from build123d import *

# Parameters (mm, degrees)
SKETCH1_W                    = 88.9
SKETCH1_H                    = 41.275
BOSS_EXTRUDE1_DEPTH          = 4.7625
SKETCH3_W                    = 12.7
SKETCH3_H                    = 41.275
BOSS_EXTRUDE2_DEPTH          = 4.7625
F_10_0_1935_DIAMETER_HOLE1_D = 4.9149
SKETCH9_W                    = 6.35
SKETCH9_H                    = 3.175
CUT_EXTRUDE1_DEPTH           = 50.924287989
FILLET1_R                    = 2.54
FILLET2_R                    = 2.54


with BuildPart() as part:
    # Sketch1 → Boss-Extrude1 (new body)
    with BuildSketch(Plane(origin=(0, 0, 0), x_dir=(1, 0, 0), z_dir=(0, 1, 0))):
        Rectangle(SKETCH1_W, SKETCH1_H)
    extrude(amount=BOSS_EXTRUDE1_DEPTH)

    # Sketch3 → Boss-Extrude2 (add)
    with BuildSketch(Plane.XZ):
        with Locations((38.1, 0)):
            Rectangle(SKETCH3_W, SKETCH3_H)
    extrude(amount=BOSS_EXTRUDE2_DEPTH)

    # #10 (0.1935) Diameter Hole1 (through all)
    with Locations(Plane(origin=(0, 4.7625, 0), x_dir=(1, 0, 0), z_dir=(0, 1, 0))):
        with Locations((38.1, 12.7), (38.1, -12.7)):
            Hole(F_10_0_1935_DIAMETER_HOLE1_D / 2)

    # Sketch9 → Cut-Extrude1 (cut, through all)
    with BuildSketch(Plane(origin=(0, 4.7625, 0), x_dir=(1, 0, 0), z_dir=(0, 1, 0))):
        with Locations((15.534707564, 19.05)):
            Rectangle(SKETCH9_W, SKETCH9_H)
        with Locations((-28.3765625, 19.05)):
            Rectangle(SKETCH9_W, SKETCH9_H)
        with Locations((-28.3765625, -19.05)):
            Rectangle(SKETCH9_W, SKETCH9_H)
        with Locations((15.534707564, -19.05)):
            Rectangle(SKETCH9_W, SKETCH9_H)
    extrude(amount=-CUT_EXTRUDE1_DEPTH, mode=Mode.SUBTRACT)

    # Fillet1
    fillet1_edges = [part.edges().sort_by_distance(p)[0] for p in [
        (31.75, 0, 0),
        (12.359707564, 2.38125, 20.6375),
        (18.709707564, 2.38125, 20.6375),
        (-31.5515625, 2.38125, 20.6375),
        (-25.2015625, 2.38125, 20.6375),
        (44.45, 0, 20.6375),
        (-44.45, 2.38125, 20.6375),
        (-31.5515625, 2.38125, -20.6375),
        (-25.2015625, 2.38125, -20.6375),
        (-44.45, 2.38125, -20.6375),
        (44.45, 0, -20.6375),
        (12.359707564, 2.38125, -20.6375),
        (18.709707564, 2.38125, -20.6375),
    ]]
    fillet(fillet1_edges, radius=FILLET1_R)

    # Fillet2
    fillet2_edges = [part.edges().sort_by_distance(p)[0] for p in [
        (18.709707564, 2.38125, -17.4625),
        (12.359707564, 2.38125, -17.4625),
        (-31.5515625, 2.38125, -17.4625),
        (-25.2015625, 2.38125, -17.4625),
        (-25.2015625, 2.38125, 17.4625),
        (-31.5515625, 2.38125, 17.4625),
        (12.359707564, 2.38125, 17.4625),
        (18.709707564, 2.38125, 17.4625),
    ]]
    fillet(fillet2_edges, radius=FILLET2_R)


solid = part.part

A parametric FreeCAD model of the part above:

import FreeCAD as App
import Part
import Sketcher
Q = App.Units.Quantity


def edges_at(feature, points):
    """Names of the edges that pass closest to the given points."""
    edges = feature.Shape.Edges
    near = lambda p: min(range(len(edges)), key=lambda i: edges[i].distToShape(Part.Vertex(*p))[0])
    return sorted({f"Edge{near(p) + 1}" for p in points})


def add_polygon(sketch, points):
    """Adds a closed chain of lines whose ends are joined by coincident constraints."""
    first, n = sketch.GeometryCount, len(points)
    for a, b in zip(points, points[1:] + points[:1]):
        sketch.addGeometry(Part.LineSegment(App.Vector(*a, 0), App.Vector(*b, 0)), False)
    for i in range(n):
        sketch.addConstraint(Sketcher.Constraint("Coincident", first + i, 2, first + (i + 1) % n, 1))

doc = App.newDocument("Part")
body = doc.addObject("PartDesign::Body", "Body")

sketch1 = body.newObject("Sketcher::SketchObject", "Sketch")
sketch1.AttachmentSupport = (doc.getObject("XZ_Plane"), [""])
sketch1.MapMode = "FlatFace"
add_polygon(sketch1, [(-44, -21), (-44, 21), (44, 21), (44, -21)])
sketch1.addConstraint([
    Sketcher.Constraint("Vertical", 0),
    Sketcher.Constraint("Horizontal", 1),
    Sketcher.Constraint("Vertical", 2),
    Sketcher.Constraint("Horizontal", 3),
    Sketcher.Constraint("Symmetric", 0, 2, 2, 2, -1, 1),
    Sketcher.Constraint("DistanceX", 1, 1, 1, 2, Q("3.5 in")),
    Sketcher.Constraint("DistanceY", 0, 1, 0, 2, Q("1.625 in")),
])
pad1 = body.newObject("PartDesign::Pad", "Pad")
pad1.Profile = sketch1
pad1.Length = Q("0.1875 in")
pad1.Reversed = True

sketch2 = body.newObject("Sketcher::SketchObject", "Sketch001")
sketch2.AttachmentSupport = (doc.getObject("XZ_Plane"), [""])
sketch2.MapMode = "FlatFace"
add_polygon(sketch2, [(32, 21), (32, -21), (44, -21), (44, 21)])
sketch2.addConstraint([
    Sketcher.Constraint("Vertical", 0),
    Sketcher.Constraint("Horizontal", 1),
    Sketcher.Constraint("Vertical", 2),
    Sketcher.Constraint("Horizontal", 3),
    Sketcher.Constraint("DistanceX", 1, 1, 1, 2, Q("0.5 in")),
    Sketcher.Constraint("DistanceY", 0, 2, 0, 1, Q("1.625 in")),
    Sketcher.Constraint("DistanceX", -1, 1, 0, 2, Q("1.25 in")),
    Sketcher.Constraint("DistanceY", 0, 2, -1, 1, Q("0.8125 in")),
])
pad2 = body.newObject("PartDesign::Pad", "Pad001")
pad2.Profile = sketch2
pad2.Length = Q("0.1875 in")

sketch3 = body.newObject("Sketcher::SketchObject", "Sketch002")
sketch3.AttachmentSupport = (doc.getObject("XZ_Plane"), [""])
sketch3.MapMode = "FlatFace"
sketch3.AttachmentOffset = App.Placement(App.Vector(0, 0, -0.1875 * 25.4), App.Rotation())
sketch3.addGeometry([
    Part.Circle(App.Vector(38.1, -12.7, 0), App.Vector(0, 0, 1), 2.5),
    Part.Circle(App.Vector(38.1, 12.7, 0), App.Vector(0, 0, 1), 2.5),
], False)
sketch3.addConstraint([
    Sketcher.Constraint("Equal", 0, 1),
    Sketcher.Constraint("Symmetric", 0, 3, 1, 3, -1),
    Sketcher.Constraint("DistanceY", 0, 3, 1, 3, Q("1 in")),
    Sketcher.Constraint("Diameter", 0, Q("0.1935 in")),
    Sketcher.Constraint("DistanceX", -1, 1, 0, 3, Q("1.5 in")),
])
doc.recompute()
hole = body.newObject("PartDesign::Hole", "Hole")
hole.Profile = sketch3
hole.ThreadType = "None"
hole.Diameter = Q("0.1935 in")
hole.DepthType = "ThroughAll"
hole.Reversed = True

sketch4 = body.newObject("Sketcher::SketchObject", "Sketch003")
sketch4.AttachmentSupport = (doc.getObject("XZ_Plane"), [""])
sketch4.MapMode = "FlatFace"
sketch4.AttachmentOffset = App.Placement(App.Vector(0, 0, -0.1875 * 25.4), App.Rotation())
add_polygon(sketch4, [(12.4, -20.6), (12.4, -17.5), (18.7, -17.5), (18.7, -20.6)])
add_polygon(sketch4, [(-31.6, -20.6), (-31.6, -17.5), (-25.2, -17.5), (-25.2, -20.6)])
add_polygon(sketch4, [(-31.6, 17.5), (-31.6, 20.6), (-25.2, 20.6), (-25.2, 17.5)])
add_polygon(sketch4, [(12.4, 17.5), (12.4, 20.6), (18.7, 20.6), (18.7, 17.5)])
sketch4.addConstraint([
    Sketcher.Constraint("Vertical", 0),
    Sketcher.Constraint("Horizontal", 1),
    Sketcher.Constraint("Vertical", 2),
    Sketcher.Constraint("Horizontal", 3),
    Sketcher.Constraint("Vertical", 4),
    Sketcher.Constraint("Horizontal", 5),
    Sketcher.Constraint("Vertical", 6),
    Sketcher.Constraint("Horizontal", 7),
    Sketcher.Constraint("Vertical", 8),
    Sketcher.Constraint("Horizontal", 9),
    Sketcher.Constraint("Vertical", 10),
    Sketcher.Constraint("Horizontal", 11),
    Sketcher.Constraint("Vertical", 12),
    Sketcher.Constraint("Horizontal", 13),
    Sketcher.Constraint("Vertical", 14),
    Sketcher.Constraint("Horizontal", 15),
    Sketcher.Constraint("Symmetric", 7, 2, 8, 2, -1),
    Sketcher.Constraint("Symmetric", 5, 2, 10, 2, -1),
    Sketcher.Constraint("Symmetric", 3, 2, 12, 2, -1),
    Sketcher.Constraint("Symmetric", 1, 2, 14, 2, -1),
    Sketcher.Constraint("Horizontal", 1, 2, 4, 2),
    Sketcher.Constraint("Horizontal", 3, 2, 6, 2),
    Sketcher.Constraint("Equal", 3, 5),
    Sketcher.Constraint("DistanceX", 1, 1, 1, 2, Q("0.25 in")),
    Sketcher.Constraint("DistanceY", 4, 2, 8, 2, Q("1.5 in")),
    Sketcher.Constraint("DistanceY", 0, 1, 0, 2, Q("0.125 in")),
    Sketcher.Constraint("DistanceX", 4, 2, 0, 2, Q("43.91127 mm")),
    Sketcher.Constraint("DistanceX", -1, 1, 0, 2, Q("12.359708 mm")),
])
pocket1 = body.newObject("PartDesign::Pocket", "Pocket")
pocket1.Profile = sketch4
pocket1.Type = "ThroughAll"
pocket1.Reversed = True
doc.recompute()

fillet = body.newObject("PartDesign::Fillet", "Fillet")
fillet.Base = (pocket1, edges_at(pocket1, [
    (31.75, 0, 0),
    (12.36, 2.381, 20.637),
    (18.71, 2.381, 20.637),
    (-31.552, 2.381, 20.637),
    (-25.202, 2.381, 20.637),
    (44.45, 0, 20.637),
    (-44.45, 2.381, 20.637),
    (-31.552, 2.381, -20.637),
    (-25.202, 2.381, -20.637),
    (-44.45, 2.381, -20.637),
    (44.45, 0, -20.637),
    (12.36, 2.381, -20.637),
    (18.71, 2.381, -20.637),
]))
fillet.Radius = Q("0.1 in")
doc.recompute()

fillet2 = body.newObject("PartDesign::Fillet", "Fillet001")
fillet2.Base = (fillet, edges_at(fillet, [
    (18.71, 2.381, -17.462),
    (12.36, 2.381, -17.462),
    (-31.552, 2.381, -17.462),
    (-25.202, 2.381, -17.462),
    (-25.202, 2.381, 17.462),
    (-31.552, 2.381, 17.462),
    (12.36, 2.381, 17.462),
    (18.71, 2.381, 17.462),
]))
fillet2.Radius = Q("0.1 in")

doc.recompute()
